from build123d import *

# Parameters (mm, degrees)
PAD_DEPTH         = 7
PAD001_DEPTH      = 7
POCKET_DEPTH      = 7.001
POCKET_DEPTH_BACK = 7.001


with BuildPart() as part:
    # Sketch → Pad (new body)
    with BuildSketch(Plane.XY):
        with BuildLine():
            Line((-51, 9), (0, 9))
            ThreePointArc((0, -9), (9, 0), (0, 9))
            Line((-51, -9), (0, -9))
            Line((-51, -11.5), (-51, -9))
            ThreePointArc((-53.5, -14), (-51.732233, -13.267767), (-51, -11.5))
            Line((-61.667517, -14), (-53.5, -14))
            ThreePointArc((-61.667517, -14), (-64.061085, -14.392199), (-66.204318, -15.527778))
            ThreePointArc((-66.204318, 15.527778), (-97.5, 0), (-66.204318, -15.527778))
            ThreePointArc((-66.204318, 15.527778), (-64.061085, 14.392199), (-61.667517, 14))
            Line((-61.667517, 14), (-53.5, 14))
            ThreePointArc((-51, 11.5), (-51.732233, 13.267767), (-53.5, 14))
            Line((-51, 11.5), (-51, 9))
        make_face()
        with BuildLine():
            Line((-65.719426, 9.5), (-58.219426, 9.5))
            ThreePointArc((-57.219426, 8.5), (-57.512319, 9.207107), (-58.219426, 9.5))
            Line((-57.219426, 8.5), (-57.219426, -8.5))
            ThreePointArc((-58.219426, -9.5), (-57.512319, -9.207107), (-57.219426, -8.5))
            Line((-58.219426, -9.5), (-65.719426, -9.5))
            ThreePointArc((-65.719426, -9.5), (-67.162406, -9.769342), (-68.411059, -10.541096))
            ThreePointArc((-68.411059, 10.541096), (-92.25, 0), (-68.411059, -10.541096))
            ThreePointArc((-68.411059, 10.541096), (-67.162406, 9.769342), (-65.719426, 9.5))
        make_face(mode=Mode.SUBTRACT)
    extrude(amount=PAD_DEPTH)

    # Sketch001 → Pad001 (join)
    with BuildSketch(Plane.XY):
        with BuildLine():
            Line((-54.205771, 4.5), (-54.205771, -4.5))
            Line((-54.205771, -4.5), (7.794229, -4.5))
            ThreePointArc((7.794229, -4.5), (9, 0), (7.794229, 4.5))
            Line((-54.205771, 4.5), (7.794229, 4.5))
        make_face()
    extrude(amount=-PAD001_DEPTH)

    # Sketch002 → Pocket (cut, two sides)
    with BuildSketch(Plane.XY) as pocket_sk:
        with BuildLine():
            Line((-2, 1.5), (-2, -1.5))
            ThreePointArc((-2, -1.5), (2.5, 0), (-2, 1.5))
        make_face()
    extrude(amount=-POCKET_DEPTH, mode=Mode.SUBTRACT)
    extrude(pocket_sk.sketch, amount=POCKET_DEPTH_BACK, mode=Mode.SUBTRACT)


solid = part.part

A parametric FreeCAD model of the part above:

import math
import FreeCAD as App
import Part
import Sketcher
from FreeCAD import Vector

doc = App.newDocument("Part")
body = doc.addObject("PartDesign::Body", "Body")

sketch1 = body.newObject("Sketcher::SketchObject", "Sketch")
sketch1.AttachmentSupport = (doc.getObject("XY_Plane"), [""])
sketch1.MapMode = "FlatFace"
sketch1.addGeometry([
    Part.LineSegment(Vector(0, 9, 0), Vector(-51, 9, 0)),
    Part.LineSegment(Vector(-51, 9, 0), Vector(-51, 11.5, 0)),
    Part.ArcOfCircle(Part.Circle(Vector(-53.5, 11.5, 0), Vector(0, 0, 1), 2.5), math.radians(0), math.radians(90)),
    Part.LineSegment(Vector(-53.5, 14, 0), Vector(-61.7, 14, 0)),
    Part.ArcOfCircle(Part.Circle(Vector(-61.7, 21.5, 0), Vector(0, 0, 1), 7.5), math.radians(-127), math.radians(-90)),
    Part.ArcOfCircle(Part.Circle(Vector(-78, 0, 0), Vector(0, 0, 1), 19.5), math.radians(53), math.radians(307)),
    Part.ArcOfCircle(Part.Circle(Vector(-61.7, -21.5, 0), Vector(0, 0, 1), 7.5), math.radians(90), math.radians(127)),
    Part.LineSegment(Vector(-61.7, -14, 0), Vector(-53.5, -14, 0)),
    Part.ArcOfCircle(Part.Circle(Vector(-53.5, -11.5, 0), Vector(0, 0, 1), 2.5), math.radians(-90), math.radians(0)),
    Part.LineSegment(Vector(-51, -11.5, 0), Vector(-51, -9, 0)),
    Part.LineSegment(Vector(-51, -9, 0), Vector(0, -9, 0)),
    Part.ArcOfCircle(Part.Circle(Vector(0, 0, 0), Vector(0, 0, 1), 9), math.radians(-90), math.radians(90)),
    Part.LineSegment(Vector(-65.7, 9.5, 0), Vector(-58.2, 9.5, 0)),
    Part.ArcOfCircle(Part.Circle(Vector(-58.2, 8.5, 0), Vector(0, 0, 1), 1), math.radians(0), math.radians(90)),
    Part.LineSegment(Vector(-57.2, 8.5, 0), Vector(-57.2, -8.5, 0)),
    Part.ArcOfCircle(Part.Circle(Vector(-58.2, -8.5, 0), Vector(0, 0, 1), 1), math.radians(-90), math.radians(0)),
    Part.LineSegment(Vector(-58.2, -9.5, 0), Vector(-65.7, -9.5, 0)),
    Part.ArcOfCircle(Part.Circle(Vector(-65.7, -13.5, 0), Vector(0, 0, 1), 4), math.radians(90), math.radians(132)),
    Part.ArcOfCircle(Part.Circle(Vector(-78, 0, 0), Vector(0, 0, 1), 14.2), math.radians(48), math.radians(312)),
    Part.ArcOfCircle(Part.Circle(Vector(-65.7, 13.5, 0), Vector(0, 0, 1), 4), math.radians(-132), math.radians(-90)),
], False)
sketch1.addConstraint([
    Sketcher.Constraint("Coincident", 0, 2, 1, 1),
    Sketcher.Constraint("Tangent", 1, 2, 2, 1),
    Sketcher.Constraint("Tangent", 2, 2, 3, 1),
    Sketcher.Constraint("Tangent", 3, 2, 4, 2),
    Sketcher.Constraint("Tangent", 4, 1, 5, 1),
    Sketcher.Constraint("Tangent", 5, 2, 6, 2),
    Sketcher.Constraint("Tangent", 6, 1, 7, 1),
    Sketcher.Constraint("Tangent", 7, 2, 8, 1),
    Sketcher.Constraint("Tangent", 8, 2, 9, 1),
    Sketcher.Constraint("Coincident", 9, 2, 10, 1),
    Sketcher.Constraint("Tangent", 10, 2, 11, 1),
    Sketcher.Constraint("Tangent", 11, 2, 0, 1),
    Sketcher.Constraint("Tangent", 12, 2, 13, 2),
    Sketcher.Constraint("Tangent", 13, 1, 14, 1),
    Sketcher.Constraint("Tangent", 14, 2, 15, 2),
    Sketcher.Constraint("Tangent", 15, 1, 16, 1),
    Sketcher.Constraint("Tangent", 16, 2, 17, 1),
    Sketcher.Constraint("Tangent", 17, 2, 18, 2),
    Sketcher.Constraint("Tangent", 18, 1, 19, 1),
    Sketcher.Constraint("Tangent", 19, 2, 12, 1),
    Sketcher.Constraint("Horizontal", 0),
    Sketcher.Constraint("Vertical", 1),
    Sketcher.Constraint("Horizontal", 3),
    Sketcher.Constraint("Horizontal", 7),
    Sketcher.Constraint("Vertical", 9),
    Sketcher.Constraint("Horizontal", 10),
    Sketcher.Constraint("Horizontal", 12),
    Sketcher.Constraint("Vertical", 14),
    Sketcher.Constraint("Horizontal", 16),
    Sketcher.Constraint("Coincident", 11, 3, -1, 1),
    Sketcher.Constraint("Coincident", 18, 3, 5, 3),
    Sketcher.Constraint("Equal", 4, 6),
    Sketcher.Constraint("Equal", 2, 8),
    Sketcher.Constraint("Equal", 13, 15),
    Sketcher.Constraint("Equal", 17, 19),
    Sketcher.Constraint("Symmetric", 4, 3, 6, 3, -1),
    Sketcher.Constraint("Vertical", 2, 3, 8, 3),
    Sketcher.Constraint("Vertical", 17, 3, 19, 3),
    Sketcher.Constraint("Radius", 11, 9.0),
    Sketcher.Constraint("Radius", 13, 0.999999),
    Sketcher.Constraint("Radius", 17, 4.0),
    Sketcher.Constraint("Radius", 2, 2.5),
    Sketcher.Constraint("Radius", 5, 19.5),
    Sketcher.Constraint("DistanceX", 0, 2, 0, 1, 51.0),
    Sketcher.Constraint("DistanceY", 14, 2, 14, 1, 17.0),
    Sketcher.Constraint("Radius", 18, 14.25),
    Sketcher.Constraint("DistanceX", 12, 1, 12, 2, 7.5),
    Sketcher.Constraint("DistanceY", 1, 1, 1, 2, 2.5),
    Sketcher.Constraint("DistanceX", 5, 3, -1, 1, 78.0),
    Sketcher.Constraint("Radius", 4, 7.499996),
])
pad1 = body.newObject("PartDesign::Pad", "Pad")
pad1.Profile = sketch1
pad1.Length = 7

sketch2 = body.newObject("Sketcher::SketchObject", "Sketch001")
sketch2.AttachmentSupport = (doc.getObject("XY_Plane"), [""])
sketch2.MapMode = "FlatFace"
sketch2.addGeometry([
    Part.LineSegment(Vector(-54, 4, 0), Vector(-54, -4, 0)),
    Part.LineSegment(Vector(-54, -4, 0), Vector(8, -4, 0)),
    Part.ArcOfCircle(Part.Circle(Vector(0, 0, 0), Vector(0, 0, 1), 9), math.radians(-30), math.radians(30)),
    Part.LineSegment(Vector(8, 4, 0), Vector(-54, 4, 0)),
], False)
sketch2.addConstraint([
    Sketcher.Constraint("Coincident", 0, 2, 1, 1),
    Sketcher.Constraint("Coincident", 1, 2, 2, 1),
    Sketcher.Constraint("Coincident", 2, 2, 3, 1),
    Sketcher.Constraint("Coincident", 3, 2, 0, 1),
    Sketcher.Constraint("Vertical", 0),
    Sketcher.Constraint("Horizontal", 1),
    Sketcher.Constraint("Horizontal", 3),
    Sketcher.Constraint("Coincident", 2, 3, -1, 1),
    Sketcher.Constraint("Vertical", 1, 2, 2, 2),
    Sketcher.Constraint("DistanceX", 1, 1, 1, 2, 62.0),
    Sketcher.Constraint("DistanceY", 0, 2, 0, 1, 9.0),
    Sketcher.Constraint("Radius", 2, 9.000002),
])
pad2 = body.newObject("PartDesign::Pad", "Pad001")
pad2.Profile = sketch2
pad2.Length = 7
pad2.Reversed = True

sketch3 = body.newObject("Sketcher::SketchObject", "Sketch002")
sketch3.AttachmentSupport = (doc.getObject("XY_Plane"), [""])
sketch3.MapMode = "FlatFace"
sketch3.addGeometry([
    Part.LineSegment(Vector(-2, 1.5, 0), Vector(-2, -1.5, 0)),
    Part.ArcOfCircle(Part.Circle(Vector(0, 0, 0), Vector(0, 0, 1), 2.5), math.radians(-143), math.radians(143)),
], False)
sketch3.addConstraint([
    Sketcher.Constraint("Coincident", 0, 1, 1, 2),
    Sketcher.Constraint("Coincident", 1, 1, 0, 2),
    Sketcher.Constraint("Vertical", 0),
    Sketcher.Constraint("Coincident", 1, 3, -1, 1),
    Sketcher.Constraint("Radius", 1, 2.5),
    Sketcher.Constraint("DistanceY", 0, 2, 0, 1, 3.0),
])
pocket1 = body.newObject("PartDesign::Pocket", "Pocket")
pocket1.Profile = sketch3
pocket1.Type = "ThroughAll"
pocket1.Midplane = True

doc.recompute()
